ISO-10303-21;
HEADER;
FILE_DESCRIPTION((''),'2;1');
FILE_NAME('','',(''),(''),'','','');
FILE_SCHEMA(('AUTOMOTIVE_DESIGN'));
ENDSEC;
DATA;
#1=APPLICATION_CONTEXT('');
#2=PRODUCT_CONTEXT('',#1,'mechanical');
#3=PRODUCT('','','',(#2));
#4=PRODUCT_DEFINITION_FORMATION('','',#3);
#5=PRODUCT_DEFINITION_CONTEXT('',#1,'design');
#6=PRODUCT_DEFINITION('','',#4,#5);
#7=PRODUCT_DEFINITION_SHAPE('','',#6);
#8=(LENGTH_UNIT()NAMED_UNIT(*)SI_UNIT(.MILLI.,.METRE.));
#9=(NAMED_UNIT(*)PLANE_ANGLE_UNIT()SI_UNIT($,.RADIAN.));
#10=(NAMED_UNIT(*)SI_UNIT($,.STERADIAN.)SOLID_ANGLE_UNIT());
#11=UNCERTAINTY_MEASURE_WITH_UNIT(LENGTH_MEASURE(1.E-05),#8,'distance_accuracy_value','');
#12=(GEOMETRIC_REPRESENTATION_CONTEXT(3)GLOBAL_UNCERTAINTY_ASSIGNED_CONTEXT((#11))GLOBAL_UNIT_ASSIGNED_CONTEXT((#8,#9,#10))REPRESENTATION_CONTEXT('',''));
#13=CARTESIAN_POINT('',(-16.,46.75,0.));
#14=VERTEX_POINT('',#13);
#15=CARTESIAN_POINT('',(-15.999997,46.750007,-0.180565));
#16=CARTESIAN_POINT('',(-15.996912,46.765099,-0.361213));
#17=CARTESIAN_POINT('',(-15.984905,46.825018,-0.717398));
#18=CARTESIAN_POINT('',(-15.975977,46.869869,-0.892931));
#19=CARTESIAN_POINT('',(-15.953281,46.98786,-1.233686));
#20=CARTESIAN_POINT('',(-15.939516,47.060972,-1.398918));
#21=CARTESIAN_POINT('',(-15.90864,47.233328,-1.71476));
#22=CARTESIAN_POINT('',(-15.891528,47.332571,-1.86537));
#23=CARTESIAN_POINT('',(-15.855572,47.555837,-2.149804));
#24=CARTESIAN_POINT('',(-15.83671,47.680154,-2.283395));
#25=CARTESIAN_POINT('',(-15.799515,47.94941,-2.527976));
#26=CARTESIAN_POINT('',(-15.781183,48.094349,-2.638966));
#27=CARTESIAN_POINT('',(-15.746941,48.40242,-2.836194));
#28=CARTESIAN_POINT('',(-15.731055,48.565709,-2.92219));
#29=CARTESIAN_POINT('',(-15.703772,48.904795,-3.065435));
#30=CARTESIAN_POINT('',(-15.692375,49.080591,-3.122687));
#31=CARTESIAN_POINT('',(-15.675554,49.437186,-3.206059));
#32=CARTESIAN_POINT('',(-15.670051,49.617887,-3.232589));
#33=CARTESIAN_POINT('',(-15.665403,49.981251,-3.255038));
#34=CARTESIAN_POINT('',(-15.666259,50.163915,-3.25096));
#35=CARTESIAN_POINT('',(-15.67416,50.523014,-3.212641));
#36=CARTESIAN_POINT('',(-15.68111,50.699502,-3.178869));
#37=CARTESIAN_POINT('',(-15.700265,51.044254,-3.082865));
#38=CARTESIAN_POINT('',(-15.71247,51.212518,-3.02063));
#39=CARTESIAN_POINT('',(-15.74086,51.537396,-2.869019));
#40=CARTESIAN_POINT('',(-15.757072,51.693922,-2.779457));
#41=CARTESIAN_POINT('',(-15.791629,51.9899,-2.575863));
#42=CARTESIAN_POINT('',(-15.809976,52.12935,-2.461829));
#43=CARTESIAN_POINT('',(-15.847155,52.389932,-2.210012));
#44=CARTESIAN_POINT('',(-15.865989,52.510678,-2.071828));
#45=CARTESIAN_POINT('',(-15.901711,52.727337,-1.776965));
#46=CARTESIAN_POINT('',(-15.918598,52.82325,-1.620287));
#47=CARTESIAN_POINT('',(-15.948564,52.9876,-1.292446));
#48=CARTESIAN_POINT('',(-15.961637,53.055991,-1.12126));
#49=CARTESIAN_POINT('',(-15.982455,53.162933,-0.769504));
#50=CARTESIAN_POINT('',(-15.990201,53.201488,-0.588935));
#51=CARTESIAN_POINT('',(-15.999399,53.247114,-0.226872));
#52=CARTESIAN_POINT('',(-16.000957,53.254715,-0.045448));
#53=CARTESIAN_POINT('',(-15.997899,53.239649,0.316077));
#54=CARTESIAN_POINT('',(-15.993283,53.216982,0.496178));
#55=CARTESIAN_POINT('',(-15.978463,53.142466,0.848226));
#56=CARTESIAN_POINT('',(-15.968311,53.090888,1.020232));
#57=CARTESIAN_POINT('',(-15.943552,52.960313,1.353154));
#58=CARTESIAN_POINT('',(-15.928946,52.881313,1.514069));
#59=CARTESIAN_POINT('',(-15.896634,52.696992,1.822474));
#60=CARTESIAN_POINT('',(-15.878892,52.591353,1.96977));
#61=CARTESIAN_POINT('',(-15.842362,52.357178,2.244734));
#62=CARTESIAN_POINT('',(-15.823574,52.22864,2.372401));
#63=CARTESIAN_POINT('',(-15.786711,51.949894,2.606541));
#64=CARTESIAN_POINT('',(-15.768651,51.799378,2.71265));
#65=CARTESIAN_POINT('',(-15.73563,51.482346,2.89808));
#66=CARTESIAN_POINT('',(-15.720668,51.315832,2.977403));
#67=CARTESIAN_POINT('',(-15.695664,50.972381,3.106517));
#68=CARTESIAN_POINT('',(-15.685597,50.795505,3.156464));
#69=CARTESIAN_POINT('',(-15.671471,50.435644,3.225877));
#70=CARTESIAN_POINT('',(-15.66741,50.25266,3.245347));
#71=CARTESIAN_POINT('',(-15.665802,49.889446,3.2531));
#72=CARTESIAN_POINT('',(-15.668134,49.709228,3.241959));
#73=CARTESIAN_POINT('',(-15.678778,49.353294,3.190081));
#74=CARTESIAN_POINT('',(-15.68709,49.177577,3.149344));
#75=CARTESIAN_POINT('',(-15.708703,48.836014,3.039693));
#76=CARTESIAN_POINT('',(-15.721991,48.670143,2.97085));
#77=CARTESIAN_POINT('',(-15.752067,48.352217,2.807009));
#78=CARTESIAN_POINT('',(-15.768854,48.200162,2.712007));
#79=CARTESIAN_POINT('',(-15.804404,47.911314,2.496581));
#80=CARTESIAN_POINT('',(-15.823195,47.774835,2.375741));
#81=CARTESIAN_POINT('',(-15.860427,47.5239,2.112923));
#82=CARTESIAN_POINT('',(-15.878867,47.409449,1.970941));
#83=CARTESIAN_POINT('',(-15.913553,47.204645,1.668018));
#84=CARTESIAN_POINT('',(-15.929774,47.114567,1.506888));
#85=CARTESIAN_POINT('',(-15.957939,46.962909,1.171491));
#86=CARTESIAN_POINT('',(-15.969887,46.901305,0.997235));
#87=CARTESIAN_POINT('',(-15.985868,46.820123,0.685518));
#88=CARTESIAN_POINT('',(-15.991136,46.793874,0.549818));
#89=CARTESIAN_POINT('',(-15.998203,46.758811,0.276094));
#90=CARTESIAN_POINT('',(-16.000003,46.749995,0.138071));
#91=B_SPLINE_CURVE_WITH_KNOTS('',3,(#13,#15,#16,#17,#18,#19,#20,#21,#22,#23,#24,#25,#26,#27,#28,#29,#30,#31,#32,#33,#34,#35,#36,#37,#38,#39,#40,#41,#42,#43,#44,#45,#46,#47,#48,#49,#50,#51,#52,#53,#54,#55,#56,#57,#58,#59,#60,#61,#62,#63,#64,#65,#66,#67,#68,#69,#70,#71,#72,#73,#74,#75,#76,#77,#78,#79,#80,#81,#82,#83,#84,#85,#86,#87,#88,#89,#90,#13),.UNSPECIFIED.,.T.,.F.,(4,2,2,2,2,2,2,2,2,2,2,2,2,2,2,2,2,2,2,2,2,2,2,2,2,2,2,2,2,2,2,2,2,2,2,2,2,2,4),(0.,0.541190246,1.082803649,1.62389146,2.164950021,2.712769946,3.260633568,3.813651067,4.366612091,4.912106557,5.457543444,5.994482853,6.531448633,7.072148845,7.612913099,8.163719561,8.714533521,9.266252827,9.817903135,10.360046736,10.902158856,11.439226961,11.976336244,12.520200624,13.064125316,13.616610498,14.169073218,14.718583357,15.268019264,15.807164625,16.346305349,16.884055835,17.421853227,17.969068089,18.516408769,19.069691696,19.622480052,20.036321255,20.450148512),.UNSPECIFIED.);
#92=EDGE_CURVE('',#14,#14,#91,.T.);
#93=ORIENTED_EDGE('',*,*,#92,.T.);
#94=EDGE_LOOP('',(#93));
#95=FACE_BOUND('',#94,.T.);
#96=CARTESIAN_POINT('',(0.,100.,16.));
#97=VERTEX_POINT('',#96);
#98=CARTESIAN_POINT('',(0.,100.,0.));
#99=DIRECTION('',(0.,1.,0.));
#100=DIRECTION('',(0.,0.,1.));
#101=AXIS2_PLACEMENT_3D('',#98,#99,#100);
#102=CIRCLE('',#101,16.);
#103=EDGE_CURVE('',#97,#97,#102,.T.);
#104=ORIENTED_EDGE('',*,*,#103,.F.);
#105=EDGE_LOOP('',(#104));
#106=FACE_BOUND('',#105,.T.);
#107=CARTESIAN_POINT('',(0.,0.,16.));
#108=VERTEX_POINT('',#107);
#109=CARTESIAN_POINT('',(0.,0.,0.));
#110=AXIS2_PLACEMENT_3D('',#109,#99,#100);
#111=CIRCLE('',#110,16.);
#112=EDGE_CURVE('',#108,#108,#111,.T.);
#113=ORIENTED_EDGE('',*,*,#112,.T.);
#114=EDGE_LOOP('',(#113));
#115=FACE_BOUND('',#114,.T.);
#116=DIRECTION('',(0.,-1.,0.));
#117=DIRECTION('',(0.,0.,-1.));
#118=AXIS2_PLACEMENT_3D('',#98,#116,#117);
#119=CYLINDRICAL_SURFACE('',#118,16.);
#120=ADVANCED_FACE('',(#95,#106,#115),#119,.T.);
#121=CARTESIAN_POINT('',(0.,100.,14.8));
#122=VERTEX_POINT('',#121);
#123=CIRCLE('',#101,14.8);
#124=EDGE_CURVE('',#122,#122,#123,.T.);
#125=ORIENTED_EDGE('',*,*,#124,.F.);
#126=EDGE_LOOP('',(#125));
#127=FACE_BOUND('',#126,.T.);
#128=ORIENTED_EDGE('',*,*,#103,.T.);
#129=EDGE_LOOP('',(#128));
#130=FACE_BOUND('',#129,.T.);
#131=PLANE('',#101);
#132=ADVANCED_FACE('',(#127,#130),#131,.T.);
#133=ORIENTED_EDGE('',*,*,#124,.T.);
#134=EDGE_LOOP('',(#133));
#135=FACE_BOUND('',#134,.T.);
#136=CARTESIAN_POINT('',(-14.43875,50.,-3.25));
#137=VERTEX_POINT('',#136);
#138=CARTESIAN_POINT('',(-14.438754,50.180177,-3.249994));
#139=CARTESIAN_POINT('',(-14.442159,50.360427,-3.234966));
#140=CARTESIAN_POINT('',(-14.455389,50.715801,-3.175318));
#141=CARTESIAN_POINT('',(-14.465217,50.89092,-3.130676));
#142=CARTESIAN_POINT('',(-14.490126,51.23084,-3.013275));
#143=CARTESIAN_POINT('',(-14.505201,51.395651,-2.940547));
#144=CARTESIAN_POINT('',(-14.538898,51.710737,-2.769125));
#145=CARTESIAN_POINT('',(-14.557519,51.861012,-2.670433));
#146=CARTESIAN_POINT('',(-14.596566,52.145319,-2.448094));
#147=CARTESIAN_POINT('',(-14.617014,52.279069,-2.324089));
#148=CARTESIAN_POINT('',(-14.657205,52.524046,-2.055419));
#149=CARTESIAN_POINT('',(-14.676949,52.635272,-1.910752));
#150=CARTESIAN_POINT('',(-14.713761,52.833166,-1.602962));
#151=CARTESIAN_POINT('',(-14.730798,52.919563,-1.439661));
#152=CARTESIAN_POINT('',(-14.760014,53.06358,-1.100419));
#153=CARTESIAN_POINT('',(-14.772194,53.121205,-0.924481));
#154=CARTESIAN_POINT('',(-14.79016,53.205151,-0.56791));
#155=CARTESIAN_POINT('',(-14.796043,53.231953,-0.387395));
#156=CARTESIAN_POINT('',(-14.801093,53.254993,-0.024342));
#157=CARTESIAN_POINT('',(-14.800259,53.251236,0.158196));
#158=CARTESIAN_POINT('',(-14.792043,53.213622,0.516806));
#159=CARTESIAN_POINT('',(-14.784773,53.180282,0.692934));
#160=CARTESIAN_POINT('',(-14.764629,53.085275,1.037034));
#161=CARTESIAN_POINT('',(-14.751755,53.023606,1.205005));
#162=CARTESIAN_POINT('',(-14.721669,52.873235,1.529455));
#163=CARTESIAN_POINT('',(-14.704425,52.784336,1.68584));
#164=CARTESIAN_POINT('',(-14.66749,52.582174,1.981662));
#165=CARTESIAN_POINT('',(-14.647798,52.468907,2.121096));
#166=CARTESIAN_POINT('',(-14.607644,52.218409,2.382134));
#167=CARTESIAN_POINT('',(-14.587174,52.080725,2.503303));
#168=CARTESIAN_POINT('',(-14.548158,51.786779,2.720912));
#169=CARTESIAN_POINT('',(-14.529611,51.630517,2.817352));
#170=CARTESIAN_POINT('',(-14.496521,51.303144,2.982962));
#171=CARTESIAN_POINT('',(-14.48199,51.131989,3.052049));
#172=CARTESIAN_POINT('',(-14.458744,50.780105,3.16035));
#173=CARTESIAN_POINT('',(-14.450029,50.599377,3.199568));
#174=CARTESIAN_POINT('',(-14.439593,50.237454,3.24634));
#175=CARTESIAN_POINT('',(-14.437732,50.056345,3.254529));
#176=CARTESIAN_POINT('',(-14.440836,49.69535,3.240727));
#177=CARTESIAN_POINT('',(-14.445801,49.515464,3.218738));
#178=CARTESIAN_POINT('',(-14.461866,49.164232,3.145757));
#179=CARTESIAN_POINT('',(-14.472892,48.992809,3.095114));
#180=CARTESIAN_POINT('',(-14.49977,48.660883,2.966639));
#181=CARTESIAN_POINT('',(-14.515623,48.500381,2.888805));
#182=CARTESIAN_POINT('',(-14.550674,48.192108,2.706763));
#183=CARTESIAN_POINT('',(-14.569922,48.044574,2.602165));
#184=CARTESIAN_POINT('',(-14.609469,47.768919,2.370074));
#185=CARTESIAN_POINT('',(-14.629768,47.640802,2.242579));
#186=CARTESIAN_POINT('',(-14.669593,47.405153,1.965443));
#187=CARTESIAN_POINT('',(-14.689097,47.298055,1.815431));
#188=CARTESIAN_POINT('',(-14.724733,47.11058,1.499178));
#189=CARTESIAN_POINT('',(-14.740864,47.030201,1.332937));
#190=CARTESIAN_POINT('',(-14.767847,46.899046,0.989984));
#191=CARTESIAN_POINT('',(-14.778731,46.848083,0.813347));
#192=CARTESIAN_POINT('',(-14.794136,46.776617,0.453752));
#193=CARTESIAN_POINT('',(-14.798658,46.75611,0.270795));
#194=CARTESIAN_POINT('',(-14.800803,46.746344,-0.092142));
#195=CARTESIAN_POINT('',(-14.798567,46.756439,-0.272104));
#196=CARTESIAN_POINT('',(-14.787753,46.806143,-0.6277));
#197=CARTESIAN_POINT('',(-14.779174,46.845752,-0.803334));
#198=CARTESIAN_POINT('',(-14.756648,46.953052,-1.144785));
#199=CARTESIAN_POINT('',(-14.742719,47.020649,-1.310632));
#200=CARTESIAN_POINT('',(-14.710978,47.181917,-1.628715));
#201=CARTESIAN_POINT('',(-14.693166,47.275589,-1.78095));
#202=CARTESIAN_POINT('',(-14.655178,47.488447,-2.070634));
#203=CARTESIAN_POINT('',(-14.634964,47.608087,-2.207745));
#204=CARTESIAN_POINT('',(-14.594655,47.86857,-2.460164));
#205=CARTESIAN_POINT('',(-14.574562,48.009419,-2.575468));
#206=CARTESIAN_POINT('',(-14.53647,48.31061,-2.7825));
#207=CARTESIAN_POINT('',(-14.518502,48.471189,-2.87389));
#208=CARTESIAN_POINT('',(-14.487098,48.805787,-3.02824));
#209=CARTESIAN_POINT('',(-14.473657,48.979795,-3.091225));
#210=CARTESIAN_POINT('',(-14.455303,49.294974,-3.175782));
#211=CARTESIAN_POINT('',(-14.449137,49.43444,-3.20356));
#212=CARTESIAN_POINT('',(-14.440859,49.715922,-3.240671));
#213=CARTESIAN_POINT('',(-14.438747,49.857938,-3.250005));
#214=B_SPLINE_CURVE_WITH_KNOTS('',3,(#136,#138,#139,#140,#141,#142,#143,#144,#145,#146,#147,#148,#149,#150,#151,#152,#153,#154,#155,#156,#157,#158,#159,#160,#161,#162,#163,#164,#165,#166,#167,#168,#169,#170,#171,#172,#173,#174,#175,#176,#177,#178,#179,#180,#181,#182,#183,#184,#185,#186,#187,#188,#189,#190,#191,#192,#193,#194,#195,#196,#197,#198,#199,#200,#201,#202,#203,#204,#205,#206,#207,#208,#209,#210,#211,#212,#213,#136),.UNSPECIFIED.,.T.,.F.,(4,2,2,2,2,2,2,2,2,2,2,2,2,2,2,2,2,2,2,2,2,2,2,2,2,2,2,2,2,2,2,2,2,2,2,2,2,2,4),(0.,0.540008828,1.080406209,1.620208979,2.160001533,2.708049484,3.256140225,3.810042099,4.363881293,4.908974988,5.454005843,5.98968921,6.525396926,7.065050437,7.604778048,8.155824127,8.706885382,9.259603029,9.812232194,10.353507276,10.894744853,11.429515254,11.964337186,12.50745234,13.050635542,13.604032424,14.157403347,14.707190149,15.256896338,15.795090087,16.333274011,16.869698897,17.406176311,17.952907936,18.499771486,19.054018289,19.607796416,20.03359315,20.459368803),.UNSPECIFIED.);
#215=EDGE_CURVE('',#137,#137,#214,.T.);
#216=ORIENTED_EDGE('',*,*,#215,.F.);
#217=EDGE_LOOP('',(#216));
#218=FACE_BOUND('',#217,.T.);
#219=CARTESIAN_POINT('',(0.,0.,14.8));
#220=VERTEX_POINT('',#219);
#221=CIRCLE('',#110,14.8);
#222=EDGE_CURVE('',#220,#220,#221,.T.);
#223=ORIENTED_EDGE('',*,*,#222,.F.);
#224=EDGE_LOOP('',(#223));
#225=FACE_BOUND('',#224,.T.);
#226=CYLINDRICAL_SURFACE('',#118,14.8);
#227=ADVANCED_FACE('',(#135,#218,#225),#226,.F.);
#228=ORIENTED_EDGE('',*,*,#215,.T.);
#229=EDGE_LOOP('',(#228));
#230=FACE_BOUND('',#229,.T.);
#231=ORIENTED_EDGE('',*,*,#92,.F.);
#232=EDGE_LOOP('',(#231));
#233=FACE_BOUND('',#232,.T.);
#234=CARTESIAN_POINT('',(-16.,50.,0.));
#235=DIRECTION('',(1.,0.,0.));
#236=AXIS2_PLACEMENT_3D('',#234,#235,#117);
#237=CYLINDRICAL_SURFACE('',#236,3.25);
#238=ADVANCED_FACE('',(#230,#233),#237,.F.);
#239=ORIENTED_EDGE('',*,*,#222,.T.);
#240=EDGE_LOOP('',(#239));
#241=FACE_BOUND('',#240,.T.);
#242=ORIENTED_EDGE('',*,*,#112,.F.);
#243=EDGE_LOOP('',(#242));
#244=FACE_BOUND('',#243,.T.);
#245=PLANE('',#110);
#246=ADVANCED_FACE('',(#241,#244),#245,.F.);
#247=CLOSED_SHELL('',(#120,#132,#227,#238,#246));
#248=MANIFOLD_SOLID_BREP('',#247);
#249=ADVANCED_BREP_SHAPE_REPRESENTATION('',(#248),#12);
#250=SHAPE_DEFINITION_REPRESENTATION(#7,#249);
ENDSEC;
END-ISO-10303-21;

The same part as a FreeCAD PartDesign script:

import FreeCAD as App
import Part
import Sketcher

doc = App.newDocument("Part")
body = doc.addObject("PartDesign::Body", "Body")

# Sketch on XZ plane
sketch1 = doc.addObject("Sketcher::SketchObject", "Sketch")
body.addObject(sketch1)
sketch1.AttachmentSupport = (doc.XZ_Plane, [""])
sketch1.MapMode = "FlatFace"
sketch1.addGeometry([
    Part.Circle(App.Vector(0, 0, 0), App.Vector(0, 0, 1), 16),
    Part.Circle(App.Vector(0, 0, 0), App.Vector(0, 0, 1), 15),
], False)
sketch1.addConstraint([
    Sketcher.Constraint("Coincident", 0, 3, -1, 1),
    Sketcher.Constraint("Coincident", 1, 3, -1, 1),
    Sketcher.Constraint("Diameter", 0, 32.0),
    Sketcher.Constraint("Diameter", 1, 29.6),
])
pad1 = doc.addObject("PartDesign::Pad", "Pad")
body.addObject(pad1)
pad1.Profile = sketch1
pad1.Length = 100
pad1.Reversed = True

# Sketch on YZ plane
sketch2 = doc.addObject("Sketcher::SketchObject", "Sketch001")
body.addObject(sketch2)
sketch2.AttachmentSupport = (doc.YZ_Plane, [""])
sketch2.MapMode = "FlatFace"
sketch2.addGeometry(Part.Circle(App.Vector(50, 0, 0), App.Vector(0, 0, 1), 3.2), False)
sketch2.addConstraint([
    Sketcher.Constraint("PointOnObject", 0, 3, -1),
    Sketcher.Constraint("Diameter", 0, 6.5),
    Sketcher.Constraint("DistanceX", -1, 1, 0, 3, 50.0),
])
pocket1 = doc.addObject("PartDesign::Pocket", "Pocket")
body.addObject(pocket1)
pocket1.Profile = sketch2
pocket1.Type = "ThroughAll"

doc.recompute()
